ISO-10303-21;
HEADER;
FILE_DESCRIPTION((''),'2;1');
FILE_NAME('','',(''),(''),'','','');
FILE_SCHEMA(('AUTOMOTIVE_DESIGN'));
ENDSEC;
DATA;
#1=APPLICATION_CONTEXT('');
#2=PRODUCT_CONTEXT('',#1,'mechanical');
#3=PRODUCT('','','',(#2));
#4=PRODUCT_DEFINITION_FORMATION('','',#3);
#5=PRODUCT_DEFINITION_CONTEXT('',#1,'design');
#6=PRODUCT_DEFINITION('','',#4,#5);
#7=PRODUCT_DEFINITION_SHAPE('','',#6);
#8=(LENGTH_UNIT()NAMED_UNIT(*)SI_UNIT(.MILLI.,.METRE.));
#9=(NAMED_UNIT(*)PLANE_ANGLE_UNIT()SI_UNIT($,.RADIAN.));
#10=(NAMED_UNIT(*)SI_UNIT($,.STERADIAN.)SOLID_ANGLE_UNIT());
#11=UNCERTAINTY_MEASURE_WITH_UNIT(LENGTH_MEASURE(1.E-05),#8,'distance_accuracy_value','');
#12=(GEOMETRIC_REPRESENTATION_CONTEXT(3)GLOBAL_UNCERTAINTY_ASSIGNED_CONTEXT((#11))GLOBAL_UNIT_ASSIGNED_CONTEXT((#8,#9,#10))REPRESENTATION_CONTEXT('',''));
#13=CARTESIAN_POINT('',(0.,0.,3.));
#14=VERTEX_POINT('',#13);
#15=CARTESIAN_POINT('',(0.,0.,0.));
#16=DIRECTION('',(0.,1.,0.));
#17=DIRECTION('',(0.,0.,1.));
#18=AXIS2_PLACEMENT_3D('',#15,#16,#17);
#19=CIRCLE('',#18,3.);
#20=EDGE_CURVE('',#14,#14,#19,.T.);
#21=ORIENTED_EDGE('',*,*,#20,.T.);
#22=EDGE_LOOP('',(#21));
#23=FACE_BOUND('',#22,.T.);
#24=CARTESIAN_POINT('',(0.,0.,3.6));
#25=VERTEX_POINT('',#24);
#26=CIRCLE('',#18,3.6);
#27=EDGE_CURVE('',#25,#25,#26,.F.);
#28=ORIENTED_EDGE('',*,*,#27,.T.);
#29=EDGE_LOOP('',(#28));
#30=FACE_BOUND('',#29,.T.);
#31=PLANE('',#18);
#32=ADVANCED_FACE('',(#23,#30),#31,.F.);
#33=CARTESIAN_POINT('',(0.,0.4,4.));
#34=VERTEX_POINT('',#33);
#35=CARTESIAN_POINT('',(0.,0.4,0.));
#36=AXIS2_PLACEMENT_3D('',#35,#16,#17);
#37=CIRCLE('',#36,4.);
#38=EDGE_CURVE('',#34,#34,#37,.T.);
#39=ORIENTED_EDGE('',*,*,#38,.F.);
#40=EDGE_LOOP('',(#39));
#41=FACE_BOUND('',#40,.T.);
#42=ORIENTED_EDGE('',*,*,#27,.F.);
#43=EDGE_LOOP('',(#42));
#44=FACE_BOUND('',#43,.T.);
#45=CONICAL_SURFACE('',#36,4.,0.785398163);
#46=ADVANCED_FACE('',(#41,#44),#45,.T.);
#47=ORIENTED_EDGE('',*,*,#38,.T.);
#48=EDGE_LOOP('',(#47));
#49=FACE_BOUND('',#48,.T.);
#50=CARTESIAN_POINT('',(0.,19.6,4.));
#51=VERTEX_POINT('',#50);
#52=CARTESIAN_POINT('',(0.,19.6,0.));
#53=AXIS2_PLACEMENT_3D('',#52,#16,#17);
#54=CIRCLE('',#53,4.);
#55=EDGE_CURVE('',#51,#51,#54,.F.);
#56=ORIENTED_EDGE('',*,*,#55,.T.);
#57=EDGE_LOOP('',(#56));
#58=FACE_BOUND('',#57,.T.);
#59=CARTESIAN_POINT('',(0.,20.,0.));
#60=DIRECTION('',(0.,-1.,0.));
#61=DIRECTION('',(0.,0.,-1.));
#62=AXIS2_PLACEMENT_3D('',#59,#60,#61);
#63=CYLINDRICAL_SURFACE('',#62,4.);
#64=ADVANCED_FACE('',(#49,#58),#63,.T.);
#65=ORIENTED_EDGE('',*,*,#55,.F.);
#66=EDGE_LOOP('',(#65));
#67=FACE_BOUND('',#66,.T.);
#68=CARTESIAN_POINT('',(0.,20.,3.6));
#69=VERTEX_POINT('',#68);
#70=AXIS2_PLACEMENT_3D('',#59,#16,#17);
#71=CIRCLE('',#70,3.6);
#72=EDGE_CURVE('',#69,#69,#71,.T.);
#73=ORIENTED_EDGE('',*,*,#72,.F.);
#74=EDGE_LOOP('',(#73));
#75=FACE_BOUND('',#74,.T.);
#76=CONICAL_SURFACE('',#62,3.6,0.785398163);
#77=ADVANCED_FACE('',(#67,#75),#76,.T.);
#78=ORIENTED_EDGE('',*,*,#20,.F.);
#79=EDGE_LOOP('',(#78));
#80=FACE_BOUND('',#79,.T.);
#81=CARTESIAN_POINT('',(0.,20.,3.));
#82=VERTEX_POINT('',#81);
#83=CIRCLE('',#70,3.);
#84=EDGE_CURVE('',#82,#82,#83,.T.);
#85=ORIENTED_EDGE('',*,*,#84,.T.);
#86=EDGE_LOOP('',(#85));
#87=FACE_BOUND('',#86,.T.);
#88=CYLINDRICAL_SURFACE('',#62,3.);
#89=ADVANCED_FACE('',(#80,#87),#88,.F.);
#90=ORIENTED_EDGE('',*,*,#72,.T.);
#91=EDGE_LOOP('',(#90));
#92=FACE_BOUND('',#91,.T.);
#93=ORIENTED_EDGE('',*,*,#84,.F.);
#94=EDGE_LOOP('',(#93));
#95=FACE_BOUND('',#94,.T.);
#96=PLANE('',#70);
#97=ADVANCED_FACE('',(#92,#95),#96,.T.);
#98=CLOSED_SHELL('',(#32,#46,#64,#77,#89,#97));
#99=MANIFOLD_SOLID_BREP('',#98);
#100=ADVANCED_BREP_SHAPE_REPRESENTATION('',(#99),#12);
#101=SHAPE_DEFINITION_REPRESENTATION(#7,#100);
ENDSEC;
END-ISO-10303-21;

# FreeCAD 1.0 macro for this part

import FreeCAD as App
import Part
import Sketcher

V = App.Vector
Q = App.Units.Quantity


def edges_at(feature, points):
    """Names of the edges that pass closest to the given points."""
    edges = feature.Shape.Edges
    near = lambda p: min(range(len(edges)), key=lambda i: edges[i].distToShape(Part.Vertex(*p))[0])
    return sorted({f"Edge{near(p) + 1}" for p in points})

doc = App.newDocument("Part")
body = doc.addObject("PartDesign::Body", "Body")

sketch1 = body.newObject("Sketcher::SketchObject", "Sketch")
sketch1.AttachmentSupport = (doc.getObject("XZ_Plane"), [""])
sketch1.MapMode = "FlatFace"
sketch1.addGeometry([
    Part.Circle(V(0, 0, 0), V(0, 0, 1), 4),
    Part.Circle(V(0, 0, 0), V(0, 0, 1), 3),
], False)
sketch1.addConstraint([
    Sketcher.Constraint("Coincident", 0, 3, -1, 1),
    Sketcher.Constraint("Coincident", 1, 3, -1, 1),
    Sketcher.Constraint("Diameter", 0, Q("8 mm")),
    Sketcher.Constraint("Diameter", 1, Q("6 mm")),
])
pad1 = body.newObject("PartDesign::Pad", "Pad")
pad1.Profile = sketch1
pad1.Length = 20
pad1.Reversed = True
doc.recompute()

chamfer = body.newObject("PartDesign::Chamfer", "Chamfer")
chamfer.Base = (pad1, edges_at(pad1, [(0, 0, -4), (0, 20, -4)]))
chamfer.Size = 0.4

doc.recompute()
